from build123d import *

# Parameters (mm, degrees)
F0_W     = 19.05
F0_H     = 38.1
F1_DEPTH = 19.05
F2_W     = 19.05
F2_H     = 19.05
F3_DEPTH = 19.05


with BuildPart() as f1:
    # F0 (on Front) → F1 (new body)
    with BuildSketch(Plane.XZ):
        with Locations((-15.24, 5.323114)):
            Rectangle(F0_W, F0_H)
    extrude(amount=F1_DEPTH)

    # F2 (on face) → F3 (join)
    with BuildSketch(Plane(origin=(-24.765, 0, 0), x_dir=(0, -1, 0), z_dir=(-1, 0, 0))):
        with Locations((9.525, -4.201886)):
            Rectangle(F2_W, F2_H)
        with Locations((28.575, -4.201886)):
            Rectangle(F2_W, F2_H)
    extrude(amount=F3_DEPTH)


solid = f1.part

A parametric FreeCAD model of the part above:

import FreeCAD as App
import Part
import Sketcher

V = App.Vector
Q = App.Units.Quantity

doc = App.newDocument("Part")
body = doc.addObject("PartDesign::Body", "Body")

sketch1 = doc.addObject("Sketcher::SketchObject", "Sketch")
body.addObject(sketch1)
sketch1.AttachmentSupport = (doc.XZ_Plane, [""])
sketch1.MapMode = "FlatFace"
sketch1.addGeometry(Part.LineSegment(V(-25, 24, 0), V(-25, -14, 0)), False)
sketch1.addGeometry(Part.LineSegment(V(-25, -14, 0), V(-6, -14, 0)), False)
sketch1.addGeometry(Part.LineSegment(V(-6, -14, 0), V(-6, 24, 0)), False)
sketch1.addGeometry(Part.LineSegment(V(-6, 24, 0), V(-25, 24, 0)), False)
sketch1.addConstraint(Sketcher.Constraint("Coincident", 0, 2, 1, 1))
sketch1.addConstraint(Sketcher.Constraint("Coincident", 1, 2, 2, 1))
sketch1.addConstraint(Sketcher.Constraint("Coincident", 2, 2, 3, 1))
sketch1.addConstraint(Sketcher.Constraint("Coincident", 3, 2, 0, 1))
sketch1.addConstraint(Sketcher.Constraint("Vertical", 0))
sketch1.addConstraint(Sketcher.Constraint("Horizontal", 1))
sketch1.addConstraint(Sketcher.Constraint("Vertical", 2))
sketch1.addConstraint(Sketcher.Constraint("Horizontal", 3))
sketch1.addConstraint(Sketcher.Constraint("DistanceY", 0, 2, 0, 1, Q("1.5 in")))
sketch1.addConstraint(Sketcher.Constraint("DistanceX", 1, 1, 1, 2, Q("0.75 in")))
sketch1.addConstraint(Sketcher.Constraint("DistanceX", 0, 2, -1, 1, Q("0.975 in")))
sketch1.addConstraint(Sketcher.Constraint("DistanceY", 0, 2, -1, 1, Q("13.726886 mm")))
pad1 = doc.addObject("PartDesign::Pad", "Pad")
body.addObject(pad1)
pad1.Profile = sketch1
pad1.Length = Q("0.75 in")

sketch2 = doc.addObject("Sketcher::SketchObject", "Sketch001")
body.addObject(sketch2)
sketch2.AttachmentSupport = (doc.YZ_Plane, [""])
sketch2.MapMode = "FlatFace"
sketch2.AttachmentOffset = App.Placement(V(0, 0, -0.975 * 25.4), App.Rotation())
sketch2.addGeometry(Part.LineSegment(V(0, 5, 0), V(0, -14, 0)), False)
sketch2.addGeometry(Part.LineSegment(V(0, -14, 0), V(-38, -14, 0)), False)
sketch2.addGeometry(Part.LineSegment(V(-38, -14, 0), V(-38, 5, 0)), False)
sketch2.addGeometry(Part.LineSegment(V(-38, 5, 0), V(0, 5, 0)), False)
sketch2.addConstraint(Sketcher.Constraint("Coincident", 0, 2, 1, 1))
sketch2.addConstraint(Sketcher.Constraint("Coincident", 1, 2, 2, 1))
sketch2.addConstraint(Sketcher.Constraint("Coincident", 2, 2, 3, 1))
sketch2.addConstraint(Sketcher.Constraint("Coincident", 3, 2, 0, 1))
sketch2.addConstraint(Sketcher.Constraint("Vertical", 0))
sketch2.addConstraint(Sketcher.Constraint("Horizontal", 1))
sketch2.addConstraint(Sketcher.Constraint("Vertical", 2))
sketch2.addConstraint(Sketcher.Constraint("Horizontal", 3))
sketch2.addConstraint(Sketcher.Constraint("PointOnObject", 0, 2, -2))
sketch2.addConstraint(Sketcher.Constraint("DistanceX", 1, 2, 1, 1, Q("1.5 in")))
sketch2.addConstraint(Sketcher.Constraint("DistanceY", 0, 2, 0, 1, Q("0.75 in")))
sketch2.addConstraint(Sketcher.Constraint("DistanceY", 0, 2, -1, 1, Q("13.726886 mm")))
pad2 = doc.addObject("PartDesign::Pad", "Pad001")
body.addObject(pad2)
pad2.Profile = sketch2
pad2.Length = Q("0.75 in")
pad2.Reversed = True

doc.recompute()
